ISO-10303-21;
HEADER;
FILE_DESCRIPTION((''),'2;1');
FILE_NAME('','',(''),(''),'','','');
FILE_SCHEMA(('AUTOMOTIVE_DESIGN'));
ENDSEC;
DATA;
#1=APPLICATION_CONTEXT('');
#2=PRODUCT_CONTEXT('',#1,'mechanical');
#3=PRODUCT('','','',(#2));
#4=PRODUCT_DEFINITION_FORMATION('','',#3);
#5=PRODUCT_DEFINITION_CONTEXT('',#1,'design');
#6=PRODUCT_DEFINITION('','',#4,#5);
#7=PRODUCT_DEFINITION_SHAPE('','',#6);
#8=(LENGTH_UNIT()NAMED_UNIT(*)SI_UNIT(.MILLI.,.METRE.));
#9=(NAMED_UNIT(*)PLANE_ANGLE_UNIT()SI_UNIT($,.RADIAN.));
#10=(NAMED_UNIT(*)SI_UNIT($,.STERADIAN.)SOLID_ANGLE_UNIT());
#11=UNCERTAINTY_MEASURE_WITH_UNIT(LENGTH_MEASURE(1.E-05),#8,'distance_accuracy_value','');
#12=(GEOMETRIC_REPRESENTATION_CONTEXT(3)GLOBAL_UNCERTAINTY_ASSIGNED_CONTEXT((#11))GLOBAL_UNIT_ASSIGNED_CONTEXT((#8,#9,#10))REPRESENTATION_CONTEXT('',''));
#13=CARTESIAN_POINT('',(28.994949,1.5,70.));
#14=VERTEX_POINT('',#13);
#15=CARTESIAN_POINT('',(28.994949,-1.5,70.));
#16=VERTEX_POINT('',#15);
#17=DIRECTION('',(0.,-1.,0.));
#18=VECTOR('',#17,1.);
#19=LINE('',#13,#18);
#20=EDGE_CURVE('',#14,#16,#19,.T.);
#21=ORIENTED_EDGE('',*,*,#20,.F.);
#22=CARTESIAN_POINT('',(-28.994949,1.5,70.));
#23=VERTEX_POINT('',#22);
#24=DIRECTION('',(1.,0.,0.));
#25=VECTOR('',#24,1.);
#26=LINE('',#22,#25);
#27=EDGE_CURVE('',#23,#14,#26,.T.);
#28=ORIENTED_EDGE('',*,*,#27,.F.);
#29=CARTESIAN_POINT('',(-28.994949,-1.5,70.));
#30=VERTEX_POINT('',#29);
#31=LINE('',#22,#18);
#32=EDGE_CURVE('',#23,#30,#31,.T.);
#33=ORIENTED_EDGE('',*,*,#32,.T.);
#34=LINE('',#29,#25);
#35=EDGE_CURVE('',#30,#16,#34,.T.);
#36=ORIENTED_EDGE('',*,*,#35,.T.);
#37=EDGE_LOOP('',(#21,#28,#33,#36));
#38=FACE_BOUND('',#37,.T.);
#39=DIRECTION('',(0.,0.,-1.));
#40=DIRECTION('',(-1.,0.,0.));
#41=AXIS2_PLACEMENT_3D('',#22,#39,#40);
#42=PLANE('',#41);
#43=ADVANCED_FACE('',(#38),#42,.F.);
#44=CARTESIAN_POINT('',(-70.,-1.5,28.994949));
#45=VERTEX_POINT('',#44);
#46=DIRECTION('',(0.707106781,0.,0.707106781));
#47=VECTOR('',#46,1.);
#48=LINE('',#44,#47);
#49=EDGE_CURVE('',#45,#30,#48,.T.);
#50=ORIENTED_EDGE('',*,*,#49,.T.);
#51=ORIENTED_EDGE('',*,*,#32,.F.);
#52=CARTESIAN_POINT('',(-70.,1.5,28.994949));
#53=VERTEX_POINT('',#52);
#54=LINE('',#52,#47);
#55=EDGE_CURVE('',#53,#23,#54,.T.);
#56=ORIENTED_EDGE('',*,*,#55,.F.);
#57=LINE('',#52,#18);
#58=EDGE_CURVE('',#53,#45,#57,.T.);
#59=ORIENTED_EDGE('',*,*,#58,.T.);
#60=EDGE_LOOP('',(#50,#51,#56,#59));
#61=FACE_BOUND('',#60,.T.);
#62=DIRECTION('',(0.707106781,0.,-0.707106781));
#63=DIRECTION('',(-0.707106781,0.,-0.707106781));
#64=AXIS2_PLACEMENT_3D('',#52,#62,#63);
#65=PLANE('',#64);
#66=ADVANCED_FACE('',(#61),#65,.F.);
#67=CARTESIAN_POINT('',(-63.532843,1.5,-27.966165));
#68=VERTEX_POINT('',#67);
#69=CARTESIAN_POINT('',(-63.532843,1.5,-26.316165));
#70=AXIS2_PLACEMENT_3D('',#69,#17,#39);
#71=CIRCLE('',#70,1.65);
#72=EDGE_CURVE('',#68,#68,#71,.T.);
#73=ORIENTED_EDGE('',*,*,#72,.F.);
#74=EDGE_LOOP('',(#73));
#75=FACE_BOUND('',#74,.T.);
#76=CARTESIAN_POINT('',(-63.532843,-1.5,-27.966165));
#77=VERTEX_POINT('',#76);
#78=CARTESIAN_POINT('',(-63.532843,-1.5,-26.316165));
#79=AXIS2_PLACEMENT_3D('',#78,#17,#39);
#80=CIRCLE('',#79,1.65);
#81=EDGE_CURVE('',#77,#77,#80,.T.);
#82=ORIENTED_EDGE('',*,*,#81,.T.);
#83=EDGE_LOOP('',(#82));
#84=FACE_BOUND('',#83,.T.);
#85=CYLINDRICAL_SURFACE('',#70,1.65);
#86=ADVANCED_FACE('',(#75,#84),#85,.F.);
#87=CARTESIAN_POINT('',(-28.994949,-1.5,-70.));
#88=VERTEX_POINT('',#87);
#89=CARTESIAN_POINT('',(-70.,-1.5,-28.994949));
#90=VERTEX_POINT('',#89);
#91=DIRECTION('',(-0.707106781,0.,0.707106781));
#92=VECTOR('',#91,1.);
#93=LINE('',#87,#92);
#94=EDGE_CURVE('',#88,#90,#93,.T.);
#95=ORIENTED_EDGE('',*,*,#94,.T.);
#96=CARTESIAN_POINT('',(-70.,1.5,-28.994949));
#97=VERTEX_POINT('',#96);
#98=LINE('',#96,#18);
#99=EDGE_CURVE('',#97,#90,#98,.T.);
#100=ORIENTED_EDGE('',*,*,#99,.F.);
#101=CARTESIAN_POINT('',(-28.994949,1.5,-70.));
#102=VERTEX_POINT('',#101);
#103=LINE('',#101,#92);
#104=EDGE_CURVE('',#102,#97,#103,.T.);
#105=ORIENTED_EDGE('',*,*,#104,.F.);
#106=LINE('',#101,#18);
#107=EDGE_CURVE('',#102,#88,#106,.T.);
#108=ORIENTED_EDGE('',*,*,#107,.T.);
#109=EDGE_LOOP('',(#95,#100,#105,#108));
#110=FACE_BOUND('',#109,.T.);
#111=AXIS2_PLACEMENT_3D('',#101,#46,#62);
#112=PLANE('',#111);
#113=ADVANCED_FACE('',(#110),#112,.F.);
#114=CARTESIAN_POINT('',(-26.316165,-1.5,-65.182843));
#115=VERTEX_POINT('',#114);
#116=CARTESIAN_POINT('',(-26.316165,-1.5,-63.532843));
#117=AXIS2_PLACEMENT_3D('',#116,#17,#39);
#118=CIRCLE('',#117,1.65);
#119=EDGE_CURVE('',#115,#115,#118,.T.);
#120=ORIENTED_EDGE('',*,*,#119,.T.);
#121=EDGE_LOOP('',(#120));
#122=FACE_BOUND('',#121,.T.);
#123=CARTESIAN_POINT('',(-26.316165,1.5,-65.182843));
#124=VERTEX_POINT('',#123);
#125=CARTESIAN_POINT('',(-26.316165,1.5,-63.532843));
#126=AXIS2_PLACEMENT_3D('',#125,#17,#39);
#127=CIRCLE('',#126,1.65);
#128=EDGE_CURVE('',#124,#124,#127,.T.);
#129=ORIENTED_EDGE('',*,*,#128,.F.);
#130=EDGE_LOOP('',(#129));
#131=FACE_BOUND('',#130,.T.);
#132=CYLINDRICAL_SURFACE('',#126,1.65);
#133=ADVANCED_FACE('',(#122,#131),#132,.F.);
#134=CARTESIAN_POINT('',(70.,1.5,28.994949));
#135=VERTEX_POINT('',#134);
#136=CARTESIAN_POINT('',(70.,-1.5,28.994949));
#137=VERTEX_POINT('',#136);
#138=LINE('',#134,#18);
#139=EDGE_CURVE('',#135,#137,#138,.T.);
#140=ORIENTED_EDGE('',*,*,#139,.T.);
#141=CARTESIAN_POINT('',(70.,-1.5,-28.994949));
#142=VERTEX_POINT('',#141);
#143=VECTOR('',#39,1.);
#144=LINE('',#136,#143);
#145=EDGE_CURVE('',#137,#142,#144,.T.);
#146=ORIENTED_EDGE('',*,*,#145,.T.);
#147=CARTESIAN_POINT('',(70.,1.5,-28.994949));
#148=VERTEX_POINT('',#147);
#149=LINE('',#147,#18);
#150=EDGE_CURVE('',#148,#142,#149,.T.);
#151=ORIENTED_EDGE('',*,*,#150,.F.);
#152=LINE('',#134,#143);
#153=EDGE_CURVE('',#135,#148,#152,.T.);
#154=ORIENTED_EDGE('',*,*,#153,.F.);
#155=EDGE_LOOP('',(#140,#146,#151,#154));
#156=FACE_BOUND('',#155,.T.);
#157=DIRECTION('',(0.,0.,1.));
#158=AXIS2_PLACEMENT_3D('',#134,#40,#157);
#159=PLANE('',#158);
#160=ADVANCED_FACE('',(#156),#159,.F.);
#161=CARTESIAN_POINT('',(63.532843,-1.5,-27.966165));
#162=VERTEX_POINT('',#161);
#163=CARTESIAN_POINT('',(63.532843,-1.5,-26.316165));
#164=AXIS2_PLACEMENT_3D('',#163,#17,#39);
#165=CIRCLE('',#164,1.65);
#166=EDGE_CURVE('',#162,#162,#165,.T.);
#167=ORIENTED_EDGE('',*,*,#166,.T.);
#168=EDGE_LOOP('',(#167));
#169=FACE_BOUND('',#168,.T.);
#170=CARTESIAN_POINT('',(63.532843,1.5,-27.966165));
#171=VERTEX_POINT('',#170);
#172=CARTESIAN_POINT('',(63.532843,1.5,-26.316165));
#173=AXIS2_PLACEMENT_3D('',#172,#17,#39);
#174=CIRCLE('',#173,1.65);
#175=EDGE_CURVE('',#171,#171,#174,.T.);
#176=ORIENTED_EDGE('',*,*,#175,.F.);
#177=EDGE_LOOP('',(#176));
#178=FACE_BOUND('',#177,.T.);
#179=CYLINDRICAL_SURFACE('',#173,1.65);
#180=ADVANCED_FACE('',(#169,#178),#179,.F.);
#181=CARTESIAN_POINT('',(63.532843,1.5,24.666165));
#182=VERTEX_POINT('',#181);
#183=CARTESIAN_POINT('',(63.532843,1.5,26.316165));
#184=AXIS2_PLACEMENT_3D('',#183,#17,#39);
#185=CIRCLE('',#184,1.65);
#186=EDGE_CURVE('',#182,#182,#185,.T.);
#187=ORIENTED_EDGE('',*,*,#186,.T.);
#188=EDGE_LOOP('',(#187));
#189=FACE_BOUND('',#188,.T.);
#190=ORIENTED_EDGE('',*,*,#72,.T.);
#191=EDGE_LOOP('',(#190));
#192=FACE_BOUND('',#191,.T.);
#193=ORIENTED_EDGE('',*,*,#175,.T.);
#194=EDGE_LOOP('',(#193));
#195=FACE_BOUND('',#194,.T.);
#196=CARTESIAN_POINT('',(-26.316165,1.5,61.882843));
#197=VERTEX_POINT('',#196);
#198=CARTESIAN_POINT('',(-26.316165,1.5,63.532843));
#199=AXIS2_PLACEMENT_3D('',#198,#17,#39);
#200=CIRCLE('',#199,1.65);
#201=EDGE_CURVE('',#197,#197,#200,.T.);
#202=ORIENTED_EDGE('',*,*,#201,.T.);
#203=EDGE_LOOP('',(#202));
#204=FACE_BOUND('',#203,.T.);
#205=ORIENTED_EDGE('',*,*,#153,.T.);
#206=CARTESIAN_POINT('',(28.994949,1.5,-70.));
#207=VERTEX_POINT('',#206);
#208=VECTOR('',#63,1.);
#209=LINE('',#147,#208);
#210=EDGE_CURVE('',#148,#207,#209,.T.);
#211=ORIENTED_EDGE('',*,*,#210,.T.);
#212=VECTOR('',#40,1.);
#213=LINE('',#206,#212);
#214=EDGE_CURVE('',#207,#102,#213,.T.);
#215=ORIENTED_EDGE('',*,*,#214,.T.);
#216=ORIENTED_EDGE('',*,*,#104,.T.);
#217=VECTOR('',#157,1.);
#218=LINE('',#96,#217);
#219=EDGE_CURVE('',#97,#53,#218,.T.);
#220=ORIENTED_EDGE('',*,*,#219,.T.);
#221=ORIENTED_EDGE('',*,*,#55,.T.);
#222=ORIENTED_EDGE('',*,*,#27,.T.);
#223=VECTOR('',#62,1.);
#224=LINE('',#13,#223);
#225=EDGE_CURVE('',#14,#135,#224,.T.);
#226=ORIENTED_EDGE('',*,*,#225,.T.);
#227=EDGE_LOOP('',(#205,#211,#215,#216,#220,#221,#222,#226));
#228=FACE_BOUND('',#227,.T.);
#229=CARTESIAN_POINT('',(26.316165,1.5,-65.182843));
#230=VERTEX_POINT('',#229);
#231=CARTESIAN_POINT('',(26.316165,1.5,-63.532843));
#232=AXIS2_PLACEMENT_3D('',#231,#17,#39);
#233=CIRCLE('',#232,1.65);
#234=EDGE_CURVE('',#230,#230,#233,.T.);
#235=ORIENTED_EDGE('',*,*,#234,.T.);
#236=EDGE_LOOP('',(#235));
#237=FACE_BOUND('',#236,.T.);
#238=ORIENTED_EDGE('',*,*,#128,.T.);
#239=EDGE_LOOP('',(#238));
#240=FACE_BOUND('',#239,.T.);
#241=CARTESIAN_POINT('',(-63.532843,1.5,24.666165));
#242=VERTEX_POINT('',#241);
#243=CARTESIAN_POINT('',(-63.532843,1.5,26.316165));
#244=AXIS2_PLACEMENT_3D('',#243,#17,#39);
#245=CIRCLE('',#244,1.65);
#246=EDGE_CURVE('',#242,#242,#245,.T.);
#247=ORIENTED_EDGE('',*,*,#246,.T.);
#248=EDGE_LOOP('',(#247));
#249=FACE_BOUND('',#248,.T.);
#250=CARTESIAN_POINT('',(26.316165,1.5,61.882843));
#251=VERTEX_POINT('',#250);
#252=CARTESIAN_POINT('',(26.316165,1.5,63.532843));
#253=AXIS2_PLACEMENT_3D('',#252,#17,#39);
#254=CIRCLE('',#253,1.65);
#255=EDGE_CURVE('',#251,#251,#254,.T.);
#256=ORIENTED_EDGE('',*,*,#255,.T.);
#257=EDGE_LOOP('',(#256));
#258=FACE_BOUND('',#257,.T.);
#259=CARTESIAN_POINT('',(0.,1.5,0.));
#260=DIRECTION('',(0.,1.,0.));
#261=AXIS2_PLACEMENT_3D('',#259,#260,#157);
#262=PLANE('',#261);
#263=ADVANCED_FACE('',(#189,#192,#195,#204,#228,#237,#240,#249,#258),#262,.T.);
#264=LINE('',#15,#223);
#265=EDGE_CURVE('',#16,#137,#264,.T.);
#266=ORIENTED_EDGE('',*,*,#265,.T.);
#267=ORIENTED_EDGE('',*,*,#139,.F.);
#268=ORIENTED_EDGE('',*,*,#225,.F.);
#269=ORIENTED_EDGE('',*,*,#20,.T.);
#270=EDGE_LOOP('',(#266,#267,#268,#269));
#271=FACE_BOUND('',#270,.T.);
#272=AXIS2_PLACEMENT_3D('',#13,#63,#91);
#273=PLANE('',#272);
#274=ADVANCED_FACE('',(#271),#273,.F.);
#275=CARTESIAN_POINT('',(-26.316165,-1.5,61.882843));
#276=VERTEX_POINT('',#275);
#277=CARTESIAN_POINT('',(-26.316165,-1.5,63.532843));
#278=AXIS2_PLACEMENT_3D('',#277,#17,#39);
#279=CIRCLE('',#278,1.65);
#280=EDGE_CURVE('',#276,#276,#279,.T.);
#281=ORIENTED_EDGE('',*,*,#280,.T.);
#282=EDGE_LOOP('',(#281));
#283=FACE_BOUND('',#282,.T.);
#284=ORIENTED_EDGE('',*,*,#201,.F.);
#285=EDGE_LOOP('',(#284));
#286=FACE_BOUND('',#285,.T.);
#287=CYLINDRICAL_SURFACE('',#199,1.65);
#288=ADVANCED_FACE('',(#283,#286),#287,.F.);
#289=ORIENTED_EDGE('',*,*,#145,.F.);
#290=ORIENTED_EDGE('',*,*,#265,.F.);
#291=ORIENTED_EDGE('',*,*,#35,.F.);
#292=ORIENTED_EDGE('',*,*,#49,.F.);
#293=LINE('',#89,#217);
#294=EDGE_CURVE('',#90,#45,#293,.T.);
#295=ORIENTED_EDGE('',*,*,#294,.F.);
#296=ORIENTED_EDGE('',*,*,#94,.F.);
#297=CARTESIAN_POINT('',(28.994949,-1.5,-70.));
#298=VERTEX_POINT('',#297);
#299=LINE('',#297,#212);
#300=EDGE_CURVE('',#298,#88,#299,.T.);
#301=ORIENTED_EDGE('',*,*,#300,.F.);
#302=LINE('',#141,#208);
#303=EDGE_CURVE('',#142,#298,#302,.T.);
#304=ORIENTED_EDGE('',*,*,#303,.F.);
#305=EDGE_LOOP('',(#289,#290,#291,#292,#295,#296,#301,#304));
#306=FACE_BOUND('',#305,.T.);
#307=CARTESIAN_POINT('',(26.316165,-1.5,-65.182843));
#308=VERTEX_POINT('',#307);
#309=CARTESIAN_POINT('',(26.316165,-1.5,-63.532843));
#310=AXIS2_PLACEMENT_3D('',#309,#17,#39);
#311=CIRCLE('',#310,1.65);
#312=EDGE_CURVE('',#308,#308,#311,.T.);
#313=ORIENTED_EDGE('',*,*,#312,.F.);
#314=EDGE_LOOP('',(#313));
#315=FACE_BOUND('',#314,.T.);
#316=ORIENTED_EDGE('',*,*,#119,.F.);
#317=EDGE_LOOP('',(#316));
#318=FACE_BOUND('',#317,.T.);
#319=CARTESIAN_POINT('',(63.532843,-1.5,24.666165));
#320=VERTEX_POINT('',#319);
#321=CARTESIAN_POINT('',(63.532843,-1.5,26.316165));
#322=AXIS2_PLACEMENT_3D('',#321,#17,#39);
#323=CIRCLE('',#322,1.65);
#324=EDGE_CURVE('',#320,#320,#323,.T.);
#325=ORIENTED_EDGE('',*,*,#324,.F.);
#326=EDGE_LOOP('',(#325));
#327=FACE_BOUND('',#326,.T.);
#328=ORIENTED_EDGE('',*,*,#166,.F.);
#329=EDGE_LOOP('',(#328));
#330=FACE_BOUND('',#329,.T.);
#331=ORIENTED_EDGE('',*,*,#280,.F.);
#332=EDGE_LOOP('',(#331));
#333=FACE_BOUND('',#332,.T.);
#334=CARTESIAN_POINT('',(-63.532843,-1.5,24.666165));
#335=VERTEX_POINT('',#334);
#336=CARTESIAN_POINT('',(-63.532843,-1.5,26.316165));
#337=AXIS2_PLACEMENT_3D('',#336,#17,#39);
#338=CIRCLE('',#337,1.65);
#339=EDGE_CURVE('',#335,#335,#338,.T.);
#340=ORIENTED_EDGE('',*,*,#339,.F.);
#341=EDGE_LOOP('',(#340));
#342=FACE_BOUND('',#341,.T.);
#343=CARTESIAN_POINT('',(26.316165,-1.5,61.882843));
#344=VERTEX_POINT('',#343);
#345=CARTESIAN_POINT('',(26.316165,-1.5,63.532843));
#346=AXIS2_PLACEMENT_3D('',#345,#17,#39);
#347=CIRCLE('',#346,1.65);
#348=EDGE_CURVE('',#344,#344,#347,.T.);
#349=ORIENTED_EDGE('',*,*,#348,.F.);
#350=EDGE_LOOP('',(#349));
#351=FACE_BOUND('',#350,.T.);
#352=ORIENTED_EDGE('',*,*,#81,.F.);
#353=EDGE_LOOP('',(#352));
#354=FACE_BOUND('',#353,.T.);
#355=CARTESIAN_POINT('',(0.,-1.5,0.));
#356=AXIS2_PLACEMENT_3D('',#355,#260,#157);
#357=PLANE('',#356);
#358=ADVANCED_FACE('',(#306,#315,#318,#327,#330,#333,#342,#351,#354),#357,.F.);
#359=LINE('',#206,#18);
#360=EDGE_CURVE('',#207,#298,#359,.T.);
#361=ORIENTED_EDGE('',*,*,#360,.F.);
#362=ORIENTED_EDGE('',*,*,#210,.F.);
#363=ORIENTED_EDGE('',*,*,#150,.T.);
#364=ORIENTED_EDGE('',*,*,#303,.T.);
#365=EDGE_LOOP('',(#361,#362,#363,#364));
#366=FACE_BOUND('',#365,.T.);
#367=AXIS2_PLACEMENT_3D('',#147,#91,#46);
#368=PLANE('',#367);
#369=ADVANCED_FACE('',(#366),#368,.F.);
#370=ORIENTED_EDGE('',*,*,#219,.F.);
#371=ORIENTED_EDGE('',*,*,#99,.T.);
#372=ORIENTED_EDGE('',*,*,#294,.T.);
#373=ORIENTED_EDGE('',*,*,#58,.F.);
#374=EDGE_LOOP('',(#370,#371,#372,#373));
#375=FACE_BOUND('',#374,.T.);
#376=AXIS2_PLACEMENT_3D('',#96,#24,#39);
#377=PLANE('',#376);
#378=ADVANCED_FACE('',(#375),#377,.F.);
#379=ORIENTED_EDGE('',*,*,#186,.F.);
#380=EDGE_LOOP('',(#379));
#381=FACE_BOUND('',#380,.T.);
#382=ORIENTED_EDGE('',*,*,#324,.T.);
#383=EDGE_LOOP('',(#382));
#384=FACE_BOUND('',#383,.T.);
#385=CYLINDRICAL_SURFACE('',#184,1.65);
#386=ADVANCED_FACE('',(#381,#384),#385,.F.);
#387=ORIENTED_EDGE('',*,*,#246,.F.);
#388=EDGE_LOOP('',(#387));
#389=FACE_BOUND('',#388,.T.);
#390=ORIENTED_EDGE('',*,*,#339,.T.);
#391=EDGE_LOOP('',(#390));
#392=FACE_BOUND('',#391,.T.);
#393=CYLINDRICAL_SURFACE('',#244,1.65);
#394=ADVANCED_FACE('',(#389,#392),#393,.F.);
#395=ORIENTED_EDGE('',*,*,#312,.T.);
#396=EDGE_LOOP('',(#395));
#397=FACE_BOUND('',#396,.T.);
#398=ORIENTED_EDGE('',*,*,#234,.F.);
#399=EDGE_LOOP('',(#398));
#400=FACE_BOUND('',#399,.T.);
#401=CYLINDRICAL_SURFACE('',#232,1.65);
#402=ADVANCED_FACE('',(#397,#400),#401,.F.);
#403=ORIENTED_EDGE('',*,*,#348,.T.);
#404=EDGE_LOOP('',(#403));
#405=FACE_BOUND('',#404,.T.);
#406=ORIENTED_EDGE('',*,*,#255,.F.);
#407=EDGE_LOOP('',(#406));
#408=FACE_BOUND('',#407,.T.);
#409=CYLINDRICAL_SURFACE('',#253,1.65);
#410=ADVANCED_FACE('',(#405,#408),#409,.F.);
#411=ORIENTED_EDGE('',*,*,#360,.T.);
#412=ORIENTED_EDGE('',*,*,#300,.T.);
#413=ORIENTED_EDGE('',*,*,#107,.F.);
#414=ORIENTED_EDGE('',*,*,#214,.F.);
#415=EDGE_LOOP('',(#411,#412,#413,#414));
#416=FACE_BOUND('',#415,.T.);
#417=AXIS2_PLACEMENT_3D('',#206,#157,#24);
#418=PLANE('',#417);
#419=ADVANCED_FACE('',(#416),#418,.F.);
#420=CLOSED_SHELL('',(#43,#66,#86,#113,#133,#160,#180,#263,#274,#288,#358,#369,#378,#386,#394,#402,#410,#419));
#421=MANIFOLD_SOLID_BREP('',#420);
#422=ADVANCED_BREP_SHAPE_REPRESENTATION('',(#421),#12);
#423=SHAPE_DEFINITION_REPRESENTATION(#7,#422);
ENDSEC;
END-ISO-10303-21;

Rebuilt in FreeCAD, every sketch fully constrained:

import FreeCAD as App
import Part
import Sketcher

V = App.Vector

doc = App.newDocument("Part")
params = doc.addObject("Spreadsheet::Sheet", "Params")
for row, (alias, value) in enumerate([
    ("pad1_length", "3 mm"),
    ("sketch2_diameter", "3.3 mm"),
], start=1):
    params.set(f"A{row}", alias)
    params.set(f"B{row}", "=" + value)
    params.setAlias(f"B{row}", alias)

body = doc.addObject("PartDesign::Body", "Body")

# Sketch on XZ plane
sketch1 = doc.addObject("Sketcher::SketchObject", "Sketch")
body.addObject(sketch1)
sketch1.AttachmentSupport = (doc.XZ_Plane, [""])
sketch1.MapMode = "FlatFace"
sketch1.addGeometry([
    Part.LineSegment(V(70, -28.994949, 0), V(28.994949, -70, 0)),  # 0
    Part.LineSegment(V(28.994949, -70, 0), V(-28.994949, -70, 0)),  # 1
    Part.LineSegment(V(-28.994949, -70, 0), V(-70, -28.994949, 0)),  # 2
    Part.LineSegment(V(-70, -28.994949, 0), V(-70, 28.994949, 0)),  # 3
    Part.LineSegment(V(-70, 28.994949, 0), V(-28.994949, 70, 0)),  # 4
    Part.LineSegment(V(-28.994949, 70, 0), V(28.994949, 70, 0)),  # 5
    Part.LineSegment(V(28.994949, 70, 0), V(70, 28.994949, 0)),  # 6
    Part.LineSegment(V(70, 28.994949, 0), V(70, -28.994949, 0)),  # 7
], False)
sketch1.addConstraint([
    Sketcher.Constraint("Coincident", 0, 2, 1, 1),
    Sketcher.Constraint("Coincident", 1, 2, 2, 1),
    Sketcher.Constraint("Coincident", 2, 2, 3, 1),
    Sketcher.Constraint("Coincident", 3, 2, 4, 1),
    Sketcher.Constraint("Coincident", 4, 2, 5, 1),
    Sketcher.Constraint("Coincident", 5, 2, 6, 1),
    Sketcher.Constraint("Coincident", 6, 2, 7, 1),
    Sketcher.Constraint("Coincident", 7, 2, 0, 1),
    Sketcher.Constraint("Horizontal", 1),
    Sketcher.Constraint("Vertical", 3),
    Sketcher.Constraint("Horizontal", 5),
    Sketcher.Constraint("Vertical", 7),
    Sketcher.Constraint("Symmetric", 0, 2, 4, 2, -1, 1),
    Sketcher.Constraint("Symmetric", 2, 2, 6, 2, -1, 1),
    Sketcher.Constraint("Perpendicular", 0, 2),
    Sketcher.Constraint("Perpendicular", 2, 4),
    Sketcher.Constraint("Perpendicular", 4, 6),
    Sketcher.Constraint("Horizontal", 3, 2, 6, 2),
    Sketcher.Constraint("Vertical", 1, 2, 4, 2),
    Sketcher.Constraint("Equal", 5, 3),
    Sketcher.Constraint("DistanceY", 0, 2, -1, 1, 70.0),
    Sketcher.Constraint("DistanceX", 1, 2, 1, 1, 57.989899),
])
pad1 = doc.addObject("PartDesign::Pad", "Pad")
body.addObject(pad1)
pad1.Profile = sketch1
pad1.setExpression("Length", "Params.pad1_length")
pad1.Midplane = True

# Sketch on XZ plane
sketch2 = doc.addObject("Sketcher::SketchObject", "Sketch001")
body.addObject(sketch2)
sketch2.AttachmentSupport = (doc.XZ_Plane, [""])
sketch2.MapMode = "FlatFace"
sketch2.AttachmentOffset = App.Placement(V(0, 0, 1.5), App.Rotation())
sketch2.addGeometry([
    Part.Circle(V(-26.316165, 63.532843, 0), V(0, 0, 1), 1.65),  # 0
    Part.Circle(V(26.316165, 63.532843, 0), V(0, 0, 1), 1.65),  # 1
    Part.Circle(V(63.532843, 26.316165, 0), V(0, 0, 1), 1.65),  # 2
    Part.Circle(V(63.532843, -26.316165, 0), V(0, 0, 1), 1.65),  # 3
    Part.Circle(V(26.316165, -63.532843, 0), V(0, 0, 1), 1.65),  # 4
    Part.Circle(V(-26.316165, -63.532843, 0), V(0, 0, 1), 1.65),  # 5
    Part.Circle(V(-63.532843, 26.316165, 0), V(0, 0, 1), 1.65),  # 6
    Part.Circle(V(-63.532843, -26.316165, 0), V(0, 0, 1), 1.65),  # 7
], False)
sketch2.addConstraint([
    Sketcher.Constraint("Equal", 0, 1),
    Sketcher.Constraint("Equal", 1, 2),
    Sketcher.Constraint("Equal", 2, 3),
    Sketcher.Constraint("Equal", 3, 4),
    Sketcher.Constraint("Equal", 4, 5),
    Sketcher.Constraint("Equal", 5, 6),
    Sketcher.Constraint("Equal", 6, 7),
    Sketcher.Constraint("Symmetric", 0, 3, 4, 3, -1, 1),
    Sketcher.Constraint("Symmetric", 1, 3, 5, 3, -1, 1),
    Sketcher.Constraint("Symmetric", 3, 3, 6, 3, -1, 1),
    Sketcher.Constraint("Symmetric", 2, 3, 7, 3, -1, 1),
    Sketcher.Constraint("Symmetric", 0, 3, 1, 3, -2),
    Sketcher.Constraint("Symmetric", 2, 3, 6, 3, -2),
    Sketcher.Constraint("Diameter", 0, 3.3),
    Sketcher.Constraint("DistanceX", 0, 3, 1, 3, 52.632331),
    Sketcher.Constraint("DistanceX", 0, 3, 2, 3, 89.849009),
    Sketcher.Constraint("DistanceY", 3, 3, 2, 3, 52.632331),
    Sketcher.Constraint("DistanceY", 3, 3, 1, 3, 89.849009),
])
sketch2.setExpression("Constraints[13]", "Params.sketch2_diameter")
pocket1 = doc.addObject("PartDesign::Pocket", "Pocket")
body.addObject(pocket1)
pocket1.Profile = sketch2
pocket1.Type = "ThroughAll"

doc.recompute()
